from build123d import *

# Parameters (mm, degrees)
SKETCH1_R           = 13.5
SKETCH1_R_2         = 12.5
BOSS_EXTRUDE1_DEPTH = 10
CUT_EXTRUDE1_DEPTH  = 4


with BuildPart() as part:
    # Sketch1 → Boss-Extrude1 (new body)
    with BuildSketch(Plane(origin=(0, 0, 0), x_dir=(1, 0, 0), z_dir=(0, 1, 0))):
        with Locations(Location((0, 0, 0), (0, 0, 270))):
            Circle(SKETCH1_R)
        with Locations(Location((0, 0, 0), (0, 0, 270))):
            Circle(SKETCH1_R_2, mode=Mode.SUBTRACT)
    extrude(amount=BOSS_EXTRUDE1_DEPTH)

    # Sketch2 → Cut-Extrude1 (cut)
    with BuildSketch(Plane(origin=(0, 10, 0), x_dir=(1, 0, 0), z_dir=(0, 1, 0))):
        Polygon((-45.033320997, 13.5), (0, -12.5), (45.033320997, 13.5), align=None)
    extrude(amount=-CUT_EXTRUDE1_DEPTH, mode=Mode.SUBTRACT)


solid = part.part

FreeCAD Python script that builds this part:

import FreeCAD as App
import Part
import Sketcher
from FreeCAD import Vector
Q = App.Units.Quantity

doc = App.newDocument("Part")
body = doc.addObject("PartDesign::Body", "Body")

# Sketch on XZ plane
sketch1 = body.newObject("Sketcher::SketchObject", "Sketch")
sketch1.AttachmentSupport = (doc.getObject("XZ_Plane"), [""])
sketch1.MapMode = "FlatFace"
sketch1.addGeometry([
    Part.Circle(Vector(0, 0, 0), Vector(0, 0, 1), 14),
    Part.Circle(Vector(0, 0, 0), Vector(0, 0, 1), 12),
], False)
sketch1.addConstraint([
    Sketcher.Constraint("Coincident", 0, 3, -1, 1),
    Sketcher.Constraint("Coincident", 1, 3, -1, 1),
    Sketcher.Constraint("Diameter", 0, Q("27 mm")),
    Sketcher.Constraint("Diameter", 1, Q("25 mm")),
])
pad1 = body.newObject("PartDesign::Pad", "Pad")
pad1.Profile = sketch1
pad1.Length = 10
pad1.Reversed = True

# Sketch on XZ plane
sketch2 = body.newObject("Sketcher::SketchObject", "Sketch001")
sketch2.AttachmentSupport = (doc.getObject("XZ_Plane"), [""])
sketch2.MapMode = "FlatFace"
sketch2.AttachmentOffset = App.Placement(Vector(0, 0, -10), App.Rotation())
sketch2.addGeometry([
    Part.LineSegment(Vector(-45, -14, 0), Vector(0, 12, 0)),
    Part.LineSegment(Vector(0, 12, 0), Vector(45, -14, 0)),
    Part.LineSegment(Vector(45, -14, 0), Vector(-45, -14, 0)),
], False)
sketch2.addConstraint([
    Sketcher.Constraint("Coincident", 0, 2, 1, 1),
    Sketcher.Constraint("Coincident", 1, 2, 2, 1),
    Sketcher.Constraint("Coincident", 2, 2, 0, 1),
    Sketcher.Constraint("Horizontal", 2),
    Sketcher.Constraint("PointOnObject", 0, 2, -2),
    Sketcher.Constraint("Equal", 0, 1),
    Sketcher.Constraint("Angle", 0, Q("30 deg")),
    Sketcher.Constraint("Distance", 0, Q("52 mm")),
    Sketcher.Constraint("DistanceY", -1, 1, 0, 2, Q("12.5 mm")),
])
pocket1 = body.newObject("PartDesign::Pocket", "Pocket")
pocket1.Profile = sketch2
pocket1.Length = 4
pocket1.Reversed = True

doc.recompute()
